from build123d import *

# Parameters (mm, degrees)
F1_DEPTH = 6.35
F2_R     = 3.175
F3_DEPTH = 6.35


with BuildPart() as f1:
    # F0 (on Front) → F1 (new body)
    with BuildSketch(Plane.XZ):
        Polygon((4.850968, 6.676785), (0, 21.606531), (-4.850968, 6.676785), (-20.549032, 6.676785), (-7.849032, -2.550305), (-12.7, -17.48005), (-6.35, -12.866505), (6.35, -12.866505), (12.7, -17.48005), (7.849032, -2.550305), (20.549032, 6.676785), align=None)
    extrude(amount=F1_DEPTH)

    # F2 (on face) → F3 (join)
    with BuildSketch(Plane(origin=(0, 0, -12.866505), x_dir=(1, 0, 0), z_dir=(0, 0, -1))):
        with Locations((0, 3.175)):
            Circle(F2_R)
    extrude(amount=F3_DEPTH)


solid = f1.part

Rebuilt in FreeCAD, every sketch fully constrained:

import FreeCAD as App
import Part
import Sketcher
from FreeCAD import Vector
Q = App.Units.Quantity


def add_polygon(sketch, points):
    """Adds a closed chain of lines whose ends are joined by coincident constraints."""
    first, n = sketch.GeometryCount, len(points)
    for a, b in zip(points, points[1:] + points[:1]):
        sketch.addGeometry(Part.LineSegment(App.Vector(*a, 0), App.Vector(*b, 0)), False)
    for i in range(n):
        sketch.addConstraint(Sketcher.Constraint("Coincident", first + i, 2, first + (i + 1) % n, 1))

doc = App.newDocument("Part")
body = doc.addObject("PartDesign::Body", "Body")

# Sketch on XZ plane
sketch1 = body.newObject("Sketcher::SketchObject", "Sketch")
sketch1.AttachmentSupport = (doc.getObject("XZ_Plane"), [""])
sketch1.MapMode = "FlatFace"
add_polygon(sketch1, [(5, 7), (0, 22), (-5, 7), (-21, 7), (-8, -3), (-13, -17), (-6, -13), (6, -13), (13, -17), (8, -3), (21, 7)])  # lines 0-10
sketch1.addConstraint(Sketcher.Constraint("Horizontal", 2))
sketch1.addConstraint(Sketcher.Constraint("Horizontal", 6))
sketch1.addConstraint(Sketcher.Constraint("Horizontal", 10))
sketch1.addConstraint(Sketcher.Constraint("Symmetric", 4, 2, 7, 2, -2))
sketch1.addConstraint(Sketcher.Constraint("Symmetric", 3, 2, 8, 2, -2))
sketch1.addConstraint(Sketcher.Constraint("Symmetric", 2, 2, 9, 2, -2))
sketch1.addConstraint(Sketcher.Constraint("PointOnObject", 0, 2, -2))
sketch1.addConstraint(Sketcher.Constraint("Parallel", 1, 4))
sketch1.addConstraint(Sketcher.Constraint("Parallel", 3, 7))
sketch1.addConstraint(Sketcher.Constraint("Parallel", 0, 8))
sketch1.addConstraint(Sketcher.Constraint("Parallel", 5, 9))
sketch1.addConstraint(Sketcher.Constraint("Equal", 1, 3))
sketch1.addConstraint(Sketcher.Constraint("Equal", 3, 4))
sketch1.addConstraint(Sketcher.Constraint("DistanceX", 6, 1, 6, 2, Q("0.5 in")))
sketch1.addConstraint(Sketcher.Constraint("Angle", 0, Q("107.999998 deg")))
sketch1.addConstraint(Sketcher.Constraint("Angle", 3, Q("-36 deg")))
sketch1.addConstraint(Sketcher.Constraint("DistanceX", 4, 2, 7, 2, Q("1 in")))
sketch1.addConstraint(Sketcher.Constraint("DistanceX", 1, 2, 9, 2, Q("1 in")))
sketch1.addConstraint(Sketcher.Constraint("DistanceY", -1, 1, 0, 2, Q("21.606531 mm")))
pad1 = body.newObject("PartDesign::Pad", "Pad")
pad1.Profile = sketch1
pad1.Length = Q("0.25 in")

# Sketch on XY plane
sketch2 = body.newObject("Sketcher::SketchObject", "Sketch001")
sketch2.AttachmentSupport = (doc.getObject("XY_Plane"), [""])
sketch2.MapMode = "FlatFace"
sketch2.AttachmentOffset = App.Placement(Vector(0, 0, -12.866505), App.Rotation())
sketch2.addGeometry(Part.Circle(Vector(0, -3.2, 0), Vector(0, 0, 1), 3.2), False)
sketch2.addConstraint(Sketcher.Constraint("PointOnObject", 0, 3, -2))
sketch2.addConstraint(Sketcher.Constraint("Diameter", 0, Q("0.25 in")))
sketch2.addConstraint(Sketcher.Constraint("DistanceY", 0, 3, -1, 1, Q("0.125 in")))
pad2 = body.newObject("PartDesign::Pad", "Pad001")
pad2.Profile = sketch2
pad2.Length = Q("0.25 in")
pad2.Reversed = True

doc.recompute()
